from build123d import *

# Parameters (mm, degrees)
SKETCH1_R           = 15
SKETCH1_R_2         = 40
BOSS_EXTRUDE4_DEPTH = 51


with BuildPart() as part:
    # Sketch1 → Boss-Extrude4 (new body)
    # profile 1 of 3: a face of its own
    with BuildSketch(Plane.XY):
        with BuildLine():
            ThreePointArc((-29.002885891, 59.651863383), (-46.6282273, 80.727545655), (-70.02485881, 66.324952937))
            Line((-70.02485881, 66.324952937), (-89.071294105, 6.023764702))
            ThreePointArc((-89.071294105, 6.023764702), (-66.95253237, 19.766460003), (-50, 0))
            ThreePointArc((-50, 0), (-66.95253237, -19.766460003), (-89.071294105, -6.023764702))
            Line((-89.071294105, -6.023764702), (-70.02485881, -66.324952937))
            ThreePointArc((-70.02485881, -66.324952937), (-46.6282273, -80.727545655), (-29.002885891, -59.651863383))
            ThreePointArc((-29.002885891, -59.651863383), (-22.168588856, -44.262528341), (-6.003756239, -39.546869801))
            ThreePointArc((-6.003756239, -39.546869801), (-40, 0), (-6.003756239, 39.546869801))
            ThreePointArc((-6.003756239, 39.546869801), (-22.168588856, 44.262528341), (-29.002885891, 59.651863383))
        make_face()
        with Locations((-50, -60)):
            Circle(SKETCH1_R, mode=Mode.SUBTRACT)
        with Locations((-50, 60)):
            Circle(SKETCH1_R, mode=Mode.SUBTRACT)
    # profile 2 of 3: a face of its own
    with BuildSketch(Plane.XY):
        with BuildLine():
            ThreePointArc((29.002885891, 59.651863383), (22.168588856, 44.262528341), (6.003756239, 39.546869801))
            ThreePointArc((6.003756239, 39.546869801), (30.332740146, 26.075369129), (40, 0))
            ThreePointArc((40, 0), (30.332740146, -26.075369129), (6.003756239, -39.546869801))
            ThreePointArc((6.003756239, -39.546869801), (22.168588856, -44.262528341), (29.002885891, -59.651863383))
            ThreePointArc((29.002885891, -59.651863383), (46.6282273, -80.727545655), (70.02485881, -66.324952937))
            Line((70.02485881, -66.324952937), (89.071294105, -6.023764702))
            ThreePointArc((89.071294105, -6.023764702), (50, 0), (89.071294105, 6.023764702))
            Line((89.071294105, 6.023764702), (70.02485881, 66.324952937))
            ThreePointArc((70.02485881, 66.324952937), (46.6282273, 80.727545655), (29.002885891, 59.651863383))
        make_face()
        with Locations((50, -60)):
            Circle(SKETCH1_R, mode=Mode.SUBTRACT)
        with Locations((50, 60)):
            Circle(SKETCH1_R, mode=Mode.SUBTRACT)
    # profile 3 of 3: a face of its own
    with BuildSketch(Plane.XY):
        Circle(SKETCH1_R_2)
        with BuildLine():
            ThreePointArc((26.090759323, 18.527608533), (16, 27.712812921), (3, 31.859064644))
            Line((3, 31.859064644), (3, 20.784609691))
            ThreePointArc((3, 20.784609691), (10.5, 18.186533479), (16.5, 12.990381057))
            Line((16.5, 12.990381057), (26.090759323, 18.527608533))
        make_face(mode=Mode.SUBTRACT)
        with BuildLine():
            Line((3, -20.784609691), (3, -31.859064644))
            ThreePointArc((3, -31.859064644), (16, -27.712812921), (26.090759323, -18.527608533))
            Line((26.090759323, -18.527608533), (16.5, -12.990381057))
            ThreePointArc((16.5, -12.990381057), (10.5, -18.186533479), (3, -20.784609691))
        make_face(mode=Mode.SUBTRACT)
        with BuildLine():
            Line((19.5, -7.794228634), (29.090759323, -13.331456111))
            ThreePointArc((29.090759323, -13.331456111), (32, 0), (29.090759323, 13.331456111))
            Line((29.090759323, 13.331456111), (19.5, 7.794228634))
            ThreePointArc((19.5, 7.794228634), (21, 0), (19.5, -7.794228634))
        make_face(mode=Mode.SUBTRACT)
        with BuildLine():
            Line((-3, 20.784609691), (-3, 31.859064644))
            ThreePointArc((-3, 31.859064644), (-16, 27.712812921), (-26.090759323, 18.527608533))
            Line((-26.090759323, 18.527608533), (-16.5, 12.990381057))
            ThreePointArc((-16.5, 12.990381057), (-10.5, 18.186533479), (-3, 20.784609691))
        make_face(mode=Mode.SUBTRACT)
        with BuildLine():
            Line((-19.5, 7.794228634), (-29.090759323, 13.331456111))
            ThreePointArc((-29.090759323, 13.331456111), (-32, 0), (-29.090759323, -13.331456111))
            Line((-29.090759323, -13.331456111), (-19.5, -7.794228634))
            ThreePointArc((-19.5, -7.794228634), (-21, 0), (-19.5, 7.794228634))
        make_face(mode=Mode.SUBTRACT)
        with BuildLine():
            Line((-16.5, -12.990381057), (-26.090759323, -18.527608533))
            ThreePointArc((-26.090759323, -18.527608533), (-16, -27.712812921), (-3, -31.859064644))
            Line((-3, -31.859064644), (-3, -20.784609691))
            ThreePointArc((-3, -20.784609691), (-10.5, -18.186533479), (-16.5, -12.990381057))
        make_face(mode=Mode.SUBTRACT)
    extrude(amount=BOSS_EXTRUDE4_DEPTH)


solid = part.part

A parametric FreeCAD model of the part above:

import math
import FreeCAD as App
import Part
import Sketcher
Q = App.Units.Quantity

doc = App.newDocument("Part")
body = doc.addObject("PartDesign::Body", "Body")

sketch1 = body.newObject("Sketcher::SketchObject", "Sketch")
sketch1.AttachmentSupport = (doc.getObject("XY_Plane"), [""])
sketch1.MapMode = "FlatFace"
sketch1.addGeometry([
    Part.ArcOfCircle(Part.Circle(App.Vector(-50, 60, 0), App.Vector(0, 0, 1), 21), math.radians(-1), math.radians(162)),
    Part.LineSegment(App.Vector(-70, 66, 0), App.Vector(-89, 6, 0)),
    Part.ArcOfCircle(Part.Circle(App.Vector(-70, 0, 0), App.Vector(0, 0, 1), 20), math.radians(0), math.radians(162)),
    Part.ArcOfCircle(Part.Circle(App.Vector(-70, 0, 0), App.Vector(0, 0, 1), 20), math.radians(-162), math.radians(0)),
    Part.LineSegment(App.Vector(-89, -6, 0), App.Vector(-70, -66, 0)),
    Part.ArcOfCircle(Part.Circle(App.Vector(-50, -60, 0), App.Vector(0, 0, 1), 21), math.radians(-162), math.radians(1)),
    Part.ArcOfCircle(Part.Circle(App.Vector(-9, -59, 0), App.Vector(0, 0, 1), 20), math.radians(81), math.radians(181)),
    Part.ArcOfCircle(Part.Circle(App.Vector(0, 0, 0), App.Vector(0, 0, 1), 40), math.radians(-98.63), math.radians(-81.37)),
    Part.ArcOfCircle(Part.Circle(App.Vector(9, -59, 0), App.Vector(0, 0, 1), 20), math.radians(-1), math.radians(99)),
    Part.ArcOfCircle(Part.Circle(App.Vector(50, -60, 0), App.Vector(0, 0, 1), 21), math.radians(179), math.radians(342)),
    Part.LineSegment(App.Vector(70, -66, 0), App.Vector(89, -6, 0)),
    Part.ArcOfCircle(Part.Circle(App.Vector(70, 0, 0), App.Vector(0, 0, 1), 20), math.radians(18), math.radians(342)),
    Part.LineSegment(App.Vector(89, 6, 0), App.Vector(70, 66, 0)),
    Part.ArcOfCircle(Part.Circle(App.Vector(50, 60, 0), App.Vector(0, 0, 1), 21), math.radians(18), math.radians(181)),
    Part.ArcOfCircle(Part.Circle(App.Vector(9, 59, 0), App.Vector(0, 0, 1), 20), math.radians(-99), math.radians(1)),
    Part.ArcOfCircle(Part.Circle(App.Vector(0, 0, 0), App.Vector(0, 0, 1), 40), math.radians(81.37), math.radians(98.63)),
    Part.ArcOfCircle(Part.Circle(App.Vector(-9, 59, 0), App.Vector(0, 0, 1), 20), math.radians(179), math.radians(279)),
    Part.Circle(App.Vector(-50, -60, 0), App.Vector(0, 0, 1), 15),
    Part.Circle(App.Vector(-50, 60, 0), App.Vector(0, 0, 1), 15),
    Part.ArcOfCircle(Part.Circle(App.Vector(0, 0, 0), App.Vector(0, 0, 1), 21), math.radians(38), math.radians(82)),
    Part.LineSegment(App.Vector(3, 21, 0), App.Vector(3, 32, 0)),
    Part.ArcOfCircle(Part.Circle(App.Vector(0, 0, 0), App.Vector(0, 0, 1), 32), math.radians(35), math.radians(85)),
    Part.LineSegment(App.Vector(26, 19, 0), App.Vector(16, 13, 0)),
    Part.LineSegment(App.Vector(-26, -19, 0), App.Vector(-16, -13, 0)),
    Part.ArcOfCircle(Part.Circle(App.Vector(0, 0, 0), App.Vector(0, 0, 1), 21), math.radians(-142), math.radians(-98)),
    Part.LineSegment(App.Vector(-3, -21, 0), App.Vector(-3, -32, 0)),
    Part.ArcOfCircle(Part.Circle(App.Vector(0, 0, 0), App.Vector(0, 0, 1), 32), math.radians(-145), math.radians(-95)),
    Part.LineSegment(App.Vector(3, -32, 0), App.Vector(3, -21, 0)),
    Part.ArcOfCircle(Part.Circle(App.Vector(0, 0, 0), App.Vector(0, 0, 1), 21), math.radians(-82), math.radians(-38)),
    Part.LineSegment(App.Vector(16, -13, 0), App.Vector(26, -19, 0)),
    Part.ArcOfCircle(Part.Circle(App.Vector(0, 0, 0), App.Vector(0, 0, 1), 32), math.radians(-85), math.radians(-35)),
    Part.LineSegment(App.Vector(-29, 13, 0), App.Vector(-20, 8, 0)),
    Part.ArcOfCircle(Part.Circle(App.Vector(0, 0, 0), App.Vector(0, 0, 1), 21), math.radians(158), math.radians(202)),
    Part.LineSegment(App.Vector(-20, -8, 0), App.Vector(-29, -13, 0)),
    Part.ArcOfCircle(Part.Circle(App.Vector(0, 0, 0), App.Vector(0, 0, 1), 32), math.radians(155), math.radians(205)),
    Part.LineSegment(App.Vector(-3, 32, 0), App.Vector(-3, 21, 0)),
    Part.ArcOfCircle(Part.Circle(App.Vector(0, 0, 0), App.Vector(0, 0, 1), 21), math.radians(98), math.radians(142)),
    Part.LineSegment(App.Vector(-16, 13, 0), App.Vector(-26, 19, 0)),
    Part.ArcOfCircle(Part.Circle(App.Vector(0, 0, 0), App.Vector(0, 0, 1), 32), math.radians(95), math.radians(145)),
    Part.LineSegment(App.Vector(29, -13, 0), App.Vector(20, -8, 0)),
    Part.ArcOfCircle(Part.Circle(App.Vector(0, 0, 0), App.Vector(0, 0, 1), 21), math.radians(-22), math.radians(22)),
    Part.LineSegment(App.Vector(20, 8, 0), App.Vector(29, 13, 0)),
    Part.ArcOfCircle(Part.Circle(App.Vector(0, 0, 0), App.Vector(0, 0, 1), 32), math.radians(-25), math.radians(25)),
    Part.Circle(App.Vector(50, 60, 0), App.Vector(0, 0, 1), 15),
    Part.Circle(App.Vector(50, -60, 0), App.Vector(0, 0, 1), 15),
], False)
sketch1.addConstraint([
    Sketcher.Constraint("Tangent", 0, 2, 1, 1),
    Sketcher.Constraint("Tangent", 1, 2, 2, 2),
    Sketcher.Constraint("Tangent", 2, 1, 3, 2),
    Sketcher.Constraint("Tangent", 3, 1, 4, 1),
    Sketcher.Constraint("Tangent", 4, 2, 5, 1),
    Sketcher.Constraint("Tangent", 5, 2, 6, 2),
    Sketcher.Constraint("Tangent", 6, 1, 7, 1),
    Sketcher.Constraint("Tangent", 7, 2, 8, 2),
    Sketcher.Constraint("Tangent", 8, 1, 9, 1),
    Sketcher.Constraint("Tangent", 9, 2, 10, 1),
    Sketcher.Constraint("Tangent", 10, 2, 11, 2),
    Sketcher.Constraint("Tangent", 11, 1, 12, 1),
    Sketcher.Constraint("Tangent", 12, 2, 13, 1),
    Sketcher.Constraint("Tangent", 13, 2, 14, 2),
    Sketcher.Constraint("Tangent", 14, 1, 15, 1),
    Sketcher.Constraint("Tangent", 15, 2, 16, 2),
    Sketcher.Constraint("Tangent", 16, 1, 0, 1),
    Sketcher.Constraint("Coincident", 19, 2, 20, 1),
    Sketcher.Constraint("Coincident", 20, 2, 21, 2),
    Sketcher.Constraint("Coincident", 21, 1, 22, 1),
    Sketcher.Constraint("Coincident", 22, 2, 19, 1),
    Sketcher.Constraint("Coincident", 23, 2, 24, 1),
    Sketcher.Constraint("Coincident", 24, 2, 25, 1),
    Sketcher.Constraint("Coincident", 25, 2, 26, 2),
    Sketcher.Constraint("Coincident", 26, 1, 23, 1),
    Sketcher.Constraint("Coincident", 27, 2, 28, 1),
    Sketcher.Constraint("Coincident", 28, 2, 29, 1),
    Sketcher.Constraint("Coincident", 29, 2, 30, 2),
    Sketcher.Constraint("Coincident", 30, 1, 27, 1),
    Sketcher.Constraint("Coincident", 31, 2, 32, 1),
    Sketcher.Constraint("Coincident", 32, 2, 33, 1),
    Sketcher.Constraint("Coincident", 33, 2, 34, 2),
    Sketcher.Constraint("Coincident", 34, 1, 31, 1),
    Sketcher.Constraint("Coincident", 35, 2, 36, 1),
    Sketcher.Constraint("Coincident", 36, 2, 37, 1),
    Sketcher.Constraint("Coincident", 37, 2, 38, 2),
    Sketcher.Constraint("Coincident", 38, 1, 35, 1),
    Sketcher.Constraint("Coincident", 39, 2, 40, 1),
    Sketcher.Constraint("Coincident", 40, 2, 41, 1),
    Sketcher.Constraint("Coincident", 41, 2, 42, 2),
    Sketcher.Constraint("Coincident", 42, 1, 39, 1),
    Sketcher.Constraint("Vertical", 20),
    Sketcher.Constraint("Vertical", 25),
    Sketcher.Constraint("Vertical", 27),
    Sketcher.Constraint("Vertical", 35),
    Sketcher.Constraint("Coincident", 7, 3, -1, 1),
    Sketcher.Constraint("Coincident", 15, 3, -1, 1),
    Sketcher.Constraint("Coincident", 19, 3, -1, 1),
    Sketcher.Constraint("Coincident", 21, 3, -1, 1),
    Sketcher.Constraint("Coincident", 24, 3, -1, 1),
    Sketcher.Constraint("Coincident", 26, 3, -1, 1),
    Sketcher.Constraint("Coincident", 28, 3, -1, 1),
    Sketcher.Constraint("Coincident", 30, 3, -1, 1),
    Sketcher.Constraint("Coincident", 32, 3, -1, 1),
    Sketcher.Constraint("Coincident", 34, 3, -1, 1),
    Sketcher.Constraint("Coincident", 36, 3, -1, 1),
    Sketcher.Constraint("Coincident", 38, 3, -1, 1),
    Sketcher.Constraint("Coincident", 40, 3, -1, 1),
    Sketcher.Constraint("Coincident", 42, 3, -1, 1),
    Sketcher.Constraint("Coincident", 17, 3, 5, 3),
    Sketcher.Constraint("Coincident", 18, 3, 0, 3),
    Sketcher.Constraint("Coincident", 43, 3, 13, 3),
    Sketcher.Constraint("Coincident", 44, 3, 9, 3),
    Sketcher.Constraint("Equal", 2, 3),
    Sketcher.Constraint("Equal", 0, 5),
    Sketcher.Constraint("Equal", 3, 6),
    Sketcher.Constraint("Equal", 6, 8),
    Sketcher.Constraint("Equal", 5, 9),
    Sketcher.Constraint("Equal", 8, 11),
    Sketcher.Constraint("Equal", 9, 13),
    Sketcher.Constraint("Equal", 11, 14),
    Sketcher.Constraint("Equal", 7, 15),
    Sketcher.Constraint("Equal", 14, 16),
    Sketcher.Constraint("Equal", 17, 18),
    Sketcher.Constraint("Equal", 13, 19),
    Sketcher.Constraint("Equal", 19, 24),
    Sketcher.Constraint("Equal", 21, 26),
    Sketcher.Constraint("Equal", 24, 28),
    Sketcher.Constraint("Equal", 26, 30),
    Sketcher.Constraint("Equal", 28, 32),
    Sketcher.Constraint("Equal", 30, 34),
    Sketcher.Constraint("Equal", 32, 36),
    Sketcher.Constraint("Equal", 34, 38),
    Sketcher.Constraint("Equal", 36, 40),
    Sketcher.Constraint("Equal", 38, 42),
    Sketcher.Constraint("Equal", 18, 43),
    Sketcher.Constraint("Equal", 43, 44),
    Sketcher.Constraint("Symmetric", 0, 3, 9, 3, -1, 1),
    Sketcher.Constraint("Symmetric", 2, 3, 11, 3, -1, 1),
    Sketcher.Constraint("Symmetric", 5, 3, 13, 3, -1, 1),
    Sketcher.Constraint("Symmetric", 5, 3, 9, 3, -2),
    Sketcher.Constraint("PointOnObject", 2, 3, -1),
    Sketcher.Constraint("PointOnObject", 2, 1, -1),
    Sketcher.Constraint("Parallel", 22, 23),
    Sketcher.Constraint("Parallel", 29, 31),
    Sketcher.Constraint("Parallel", 23, 33),
    Sketcher.Constraint("Parallel", 31, 37),
    Sketcher.Constraint("Parallel", 37, 39),
    Sketcher.Constraint("Parallel", 33, 41),
    Sketcher.Constraint("Horizontal", 24, 2, 27, 2),
    Sketcher.Constraint("Horizontal", 23, 2, 28, 2),
    Sketcher.Constraint("Horizontal", 26, 1, 29, 2),
    Sketcher.Constraint("Horizontal", 19, 2, 35, 2),
    Sketcher.Constraint("Horizontal", 22, 2, 36, 2),
    Sketcher.Constraint("Horizontal", 32, 2, 39, 2),
    Sketcher.Constraint("Horizontal", 31, 2, 40, 2),
    Sketcher.Constraint("Vertical", 18, 3, 2, 1),
    Sketcher.Constraint("Vertical", 20, 2, 27, 2),
    Sketcher.Constraint("Vertical", 22, 2, 28, 2),
    Sketcher.Constraint("Vertical", 31, 2, 32, 2),
    Sketcher.Constraint("Equal", 29, 31),
    Sketcher.Constraint("Diameter", 17, 30.0),
    Sketcher.Constraint("Radius", 0, 21.0),
    Sketcher.Constraint("Radius", 2, 20.0),
    Sketcher.Constraint("Radius", 7, 40.0),
    Sketcher.Constraint("Radius", 21, 32.0),
    Sketcher.Constraint("Angle", 22, Q("-150 deg")),
    Sketcher.Constraint("DistanceX", 0, 3, -1, 1, 50.0),
    Sketcher.Constraint("DistanceY", -1, 1, 0, 3, 60.0),
    Sketcher.Constraint("DistanceX", -1, 1, 19, 2, 3.0),
    Sketcher.Constraint("DistanceX", -1, 1, 22, 2, 16.5),
])
pad1 = body.newObject("PartDesign::Pad", "Pad")
pad1.Profile = sketch1
pad1.Length = 51

doc.recompute()
